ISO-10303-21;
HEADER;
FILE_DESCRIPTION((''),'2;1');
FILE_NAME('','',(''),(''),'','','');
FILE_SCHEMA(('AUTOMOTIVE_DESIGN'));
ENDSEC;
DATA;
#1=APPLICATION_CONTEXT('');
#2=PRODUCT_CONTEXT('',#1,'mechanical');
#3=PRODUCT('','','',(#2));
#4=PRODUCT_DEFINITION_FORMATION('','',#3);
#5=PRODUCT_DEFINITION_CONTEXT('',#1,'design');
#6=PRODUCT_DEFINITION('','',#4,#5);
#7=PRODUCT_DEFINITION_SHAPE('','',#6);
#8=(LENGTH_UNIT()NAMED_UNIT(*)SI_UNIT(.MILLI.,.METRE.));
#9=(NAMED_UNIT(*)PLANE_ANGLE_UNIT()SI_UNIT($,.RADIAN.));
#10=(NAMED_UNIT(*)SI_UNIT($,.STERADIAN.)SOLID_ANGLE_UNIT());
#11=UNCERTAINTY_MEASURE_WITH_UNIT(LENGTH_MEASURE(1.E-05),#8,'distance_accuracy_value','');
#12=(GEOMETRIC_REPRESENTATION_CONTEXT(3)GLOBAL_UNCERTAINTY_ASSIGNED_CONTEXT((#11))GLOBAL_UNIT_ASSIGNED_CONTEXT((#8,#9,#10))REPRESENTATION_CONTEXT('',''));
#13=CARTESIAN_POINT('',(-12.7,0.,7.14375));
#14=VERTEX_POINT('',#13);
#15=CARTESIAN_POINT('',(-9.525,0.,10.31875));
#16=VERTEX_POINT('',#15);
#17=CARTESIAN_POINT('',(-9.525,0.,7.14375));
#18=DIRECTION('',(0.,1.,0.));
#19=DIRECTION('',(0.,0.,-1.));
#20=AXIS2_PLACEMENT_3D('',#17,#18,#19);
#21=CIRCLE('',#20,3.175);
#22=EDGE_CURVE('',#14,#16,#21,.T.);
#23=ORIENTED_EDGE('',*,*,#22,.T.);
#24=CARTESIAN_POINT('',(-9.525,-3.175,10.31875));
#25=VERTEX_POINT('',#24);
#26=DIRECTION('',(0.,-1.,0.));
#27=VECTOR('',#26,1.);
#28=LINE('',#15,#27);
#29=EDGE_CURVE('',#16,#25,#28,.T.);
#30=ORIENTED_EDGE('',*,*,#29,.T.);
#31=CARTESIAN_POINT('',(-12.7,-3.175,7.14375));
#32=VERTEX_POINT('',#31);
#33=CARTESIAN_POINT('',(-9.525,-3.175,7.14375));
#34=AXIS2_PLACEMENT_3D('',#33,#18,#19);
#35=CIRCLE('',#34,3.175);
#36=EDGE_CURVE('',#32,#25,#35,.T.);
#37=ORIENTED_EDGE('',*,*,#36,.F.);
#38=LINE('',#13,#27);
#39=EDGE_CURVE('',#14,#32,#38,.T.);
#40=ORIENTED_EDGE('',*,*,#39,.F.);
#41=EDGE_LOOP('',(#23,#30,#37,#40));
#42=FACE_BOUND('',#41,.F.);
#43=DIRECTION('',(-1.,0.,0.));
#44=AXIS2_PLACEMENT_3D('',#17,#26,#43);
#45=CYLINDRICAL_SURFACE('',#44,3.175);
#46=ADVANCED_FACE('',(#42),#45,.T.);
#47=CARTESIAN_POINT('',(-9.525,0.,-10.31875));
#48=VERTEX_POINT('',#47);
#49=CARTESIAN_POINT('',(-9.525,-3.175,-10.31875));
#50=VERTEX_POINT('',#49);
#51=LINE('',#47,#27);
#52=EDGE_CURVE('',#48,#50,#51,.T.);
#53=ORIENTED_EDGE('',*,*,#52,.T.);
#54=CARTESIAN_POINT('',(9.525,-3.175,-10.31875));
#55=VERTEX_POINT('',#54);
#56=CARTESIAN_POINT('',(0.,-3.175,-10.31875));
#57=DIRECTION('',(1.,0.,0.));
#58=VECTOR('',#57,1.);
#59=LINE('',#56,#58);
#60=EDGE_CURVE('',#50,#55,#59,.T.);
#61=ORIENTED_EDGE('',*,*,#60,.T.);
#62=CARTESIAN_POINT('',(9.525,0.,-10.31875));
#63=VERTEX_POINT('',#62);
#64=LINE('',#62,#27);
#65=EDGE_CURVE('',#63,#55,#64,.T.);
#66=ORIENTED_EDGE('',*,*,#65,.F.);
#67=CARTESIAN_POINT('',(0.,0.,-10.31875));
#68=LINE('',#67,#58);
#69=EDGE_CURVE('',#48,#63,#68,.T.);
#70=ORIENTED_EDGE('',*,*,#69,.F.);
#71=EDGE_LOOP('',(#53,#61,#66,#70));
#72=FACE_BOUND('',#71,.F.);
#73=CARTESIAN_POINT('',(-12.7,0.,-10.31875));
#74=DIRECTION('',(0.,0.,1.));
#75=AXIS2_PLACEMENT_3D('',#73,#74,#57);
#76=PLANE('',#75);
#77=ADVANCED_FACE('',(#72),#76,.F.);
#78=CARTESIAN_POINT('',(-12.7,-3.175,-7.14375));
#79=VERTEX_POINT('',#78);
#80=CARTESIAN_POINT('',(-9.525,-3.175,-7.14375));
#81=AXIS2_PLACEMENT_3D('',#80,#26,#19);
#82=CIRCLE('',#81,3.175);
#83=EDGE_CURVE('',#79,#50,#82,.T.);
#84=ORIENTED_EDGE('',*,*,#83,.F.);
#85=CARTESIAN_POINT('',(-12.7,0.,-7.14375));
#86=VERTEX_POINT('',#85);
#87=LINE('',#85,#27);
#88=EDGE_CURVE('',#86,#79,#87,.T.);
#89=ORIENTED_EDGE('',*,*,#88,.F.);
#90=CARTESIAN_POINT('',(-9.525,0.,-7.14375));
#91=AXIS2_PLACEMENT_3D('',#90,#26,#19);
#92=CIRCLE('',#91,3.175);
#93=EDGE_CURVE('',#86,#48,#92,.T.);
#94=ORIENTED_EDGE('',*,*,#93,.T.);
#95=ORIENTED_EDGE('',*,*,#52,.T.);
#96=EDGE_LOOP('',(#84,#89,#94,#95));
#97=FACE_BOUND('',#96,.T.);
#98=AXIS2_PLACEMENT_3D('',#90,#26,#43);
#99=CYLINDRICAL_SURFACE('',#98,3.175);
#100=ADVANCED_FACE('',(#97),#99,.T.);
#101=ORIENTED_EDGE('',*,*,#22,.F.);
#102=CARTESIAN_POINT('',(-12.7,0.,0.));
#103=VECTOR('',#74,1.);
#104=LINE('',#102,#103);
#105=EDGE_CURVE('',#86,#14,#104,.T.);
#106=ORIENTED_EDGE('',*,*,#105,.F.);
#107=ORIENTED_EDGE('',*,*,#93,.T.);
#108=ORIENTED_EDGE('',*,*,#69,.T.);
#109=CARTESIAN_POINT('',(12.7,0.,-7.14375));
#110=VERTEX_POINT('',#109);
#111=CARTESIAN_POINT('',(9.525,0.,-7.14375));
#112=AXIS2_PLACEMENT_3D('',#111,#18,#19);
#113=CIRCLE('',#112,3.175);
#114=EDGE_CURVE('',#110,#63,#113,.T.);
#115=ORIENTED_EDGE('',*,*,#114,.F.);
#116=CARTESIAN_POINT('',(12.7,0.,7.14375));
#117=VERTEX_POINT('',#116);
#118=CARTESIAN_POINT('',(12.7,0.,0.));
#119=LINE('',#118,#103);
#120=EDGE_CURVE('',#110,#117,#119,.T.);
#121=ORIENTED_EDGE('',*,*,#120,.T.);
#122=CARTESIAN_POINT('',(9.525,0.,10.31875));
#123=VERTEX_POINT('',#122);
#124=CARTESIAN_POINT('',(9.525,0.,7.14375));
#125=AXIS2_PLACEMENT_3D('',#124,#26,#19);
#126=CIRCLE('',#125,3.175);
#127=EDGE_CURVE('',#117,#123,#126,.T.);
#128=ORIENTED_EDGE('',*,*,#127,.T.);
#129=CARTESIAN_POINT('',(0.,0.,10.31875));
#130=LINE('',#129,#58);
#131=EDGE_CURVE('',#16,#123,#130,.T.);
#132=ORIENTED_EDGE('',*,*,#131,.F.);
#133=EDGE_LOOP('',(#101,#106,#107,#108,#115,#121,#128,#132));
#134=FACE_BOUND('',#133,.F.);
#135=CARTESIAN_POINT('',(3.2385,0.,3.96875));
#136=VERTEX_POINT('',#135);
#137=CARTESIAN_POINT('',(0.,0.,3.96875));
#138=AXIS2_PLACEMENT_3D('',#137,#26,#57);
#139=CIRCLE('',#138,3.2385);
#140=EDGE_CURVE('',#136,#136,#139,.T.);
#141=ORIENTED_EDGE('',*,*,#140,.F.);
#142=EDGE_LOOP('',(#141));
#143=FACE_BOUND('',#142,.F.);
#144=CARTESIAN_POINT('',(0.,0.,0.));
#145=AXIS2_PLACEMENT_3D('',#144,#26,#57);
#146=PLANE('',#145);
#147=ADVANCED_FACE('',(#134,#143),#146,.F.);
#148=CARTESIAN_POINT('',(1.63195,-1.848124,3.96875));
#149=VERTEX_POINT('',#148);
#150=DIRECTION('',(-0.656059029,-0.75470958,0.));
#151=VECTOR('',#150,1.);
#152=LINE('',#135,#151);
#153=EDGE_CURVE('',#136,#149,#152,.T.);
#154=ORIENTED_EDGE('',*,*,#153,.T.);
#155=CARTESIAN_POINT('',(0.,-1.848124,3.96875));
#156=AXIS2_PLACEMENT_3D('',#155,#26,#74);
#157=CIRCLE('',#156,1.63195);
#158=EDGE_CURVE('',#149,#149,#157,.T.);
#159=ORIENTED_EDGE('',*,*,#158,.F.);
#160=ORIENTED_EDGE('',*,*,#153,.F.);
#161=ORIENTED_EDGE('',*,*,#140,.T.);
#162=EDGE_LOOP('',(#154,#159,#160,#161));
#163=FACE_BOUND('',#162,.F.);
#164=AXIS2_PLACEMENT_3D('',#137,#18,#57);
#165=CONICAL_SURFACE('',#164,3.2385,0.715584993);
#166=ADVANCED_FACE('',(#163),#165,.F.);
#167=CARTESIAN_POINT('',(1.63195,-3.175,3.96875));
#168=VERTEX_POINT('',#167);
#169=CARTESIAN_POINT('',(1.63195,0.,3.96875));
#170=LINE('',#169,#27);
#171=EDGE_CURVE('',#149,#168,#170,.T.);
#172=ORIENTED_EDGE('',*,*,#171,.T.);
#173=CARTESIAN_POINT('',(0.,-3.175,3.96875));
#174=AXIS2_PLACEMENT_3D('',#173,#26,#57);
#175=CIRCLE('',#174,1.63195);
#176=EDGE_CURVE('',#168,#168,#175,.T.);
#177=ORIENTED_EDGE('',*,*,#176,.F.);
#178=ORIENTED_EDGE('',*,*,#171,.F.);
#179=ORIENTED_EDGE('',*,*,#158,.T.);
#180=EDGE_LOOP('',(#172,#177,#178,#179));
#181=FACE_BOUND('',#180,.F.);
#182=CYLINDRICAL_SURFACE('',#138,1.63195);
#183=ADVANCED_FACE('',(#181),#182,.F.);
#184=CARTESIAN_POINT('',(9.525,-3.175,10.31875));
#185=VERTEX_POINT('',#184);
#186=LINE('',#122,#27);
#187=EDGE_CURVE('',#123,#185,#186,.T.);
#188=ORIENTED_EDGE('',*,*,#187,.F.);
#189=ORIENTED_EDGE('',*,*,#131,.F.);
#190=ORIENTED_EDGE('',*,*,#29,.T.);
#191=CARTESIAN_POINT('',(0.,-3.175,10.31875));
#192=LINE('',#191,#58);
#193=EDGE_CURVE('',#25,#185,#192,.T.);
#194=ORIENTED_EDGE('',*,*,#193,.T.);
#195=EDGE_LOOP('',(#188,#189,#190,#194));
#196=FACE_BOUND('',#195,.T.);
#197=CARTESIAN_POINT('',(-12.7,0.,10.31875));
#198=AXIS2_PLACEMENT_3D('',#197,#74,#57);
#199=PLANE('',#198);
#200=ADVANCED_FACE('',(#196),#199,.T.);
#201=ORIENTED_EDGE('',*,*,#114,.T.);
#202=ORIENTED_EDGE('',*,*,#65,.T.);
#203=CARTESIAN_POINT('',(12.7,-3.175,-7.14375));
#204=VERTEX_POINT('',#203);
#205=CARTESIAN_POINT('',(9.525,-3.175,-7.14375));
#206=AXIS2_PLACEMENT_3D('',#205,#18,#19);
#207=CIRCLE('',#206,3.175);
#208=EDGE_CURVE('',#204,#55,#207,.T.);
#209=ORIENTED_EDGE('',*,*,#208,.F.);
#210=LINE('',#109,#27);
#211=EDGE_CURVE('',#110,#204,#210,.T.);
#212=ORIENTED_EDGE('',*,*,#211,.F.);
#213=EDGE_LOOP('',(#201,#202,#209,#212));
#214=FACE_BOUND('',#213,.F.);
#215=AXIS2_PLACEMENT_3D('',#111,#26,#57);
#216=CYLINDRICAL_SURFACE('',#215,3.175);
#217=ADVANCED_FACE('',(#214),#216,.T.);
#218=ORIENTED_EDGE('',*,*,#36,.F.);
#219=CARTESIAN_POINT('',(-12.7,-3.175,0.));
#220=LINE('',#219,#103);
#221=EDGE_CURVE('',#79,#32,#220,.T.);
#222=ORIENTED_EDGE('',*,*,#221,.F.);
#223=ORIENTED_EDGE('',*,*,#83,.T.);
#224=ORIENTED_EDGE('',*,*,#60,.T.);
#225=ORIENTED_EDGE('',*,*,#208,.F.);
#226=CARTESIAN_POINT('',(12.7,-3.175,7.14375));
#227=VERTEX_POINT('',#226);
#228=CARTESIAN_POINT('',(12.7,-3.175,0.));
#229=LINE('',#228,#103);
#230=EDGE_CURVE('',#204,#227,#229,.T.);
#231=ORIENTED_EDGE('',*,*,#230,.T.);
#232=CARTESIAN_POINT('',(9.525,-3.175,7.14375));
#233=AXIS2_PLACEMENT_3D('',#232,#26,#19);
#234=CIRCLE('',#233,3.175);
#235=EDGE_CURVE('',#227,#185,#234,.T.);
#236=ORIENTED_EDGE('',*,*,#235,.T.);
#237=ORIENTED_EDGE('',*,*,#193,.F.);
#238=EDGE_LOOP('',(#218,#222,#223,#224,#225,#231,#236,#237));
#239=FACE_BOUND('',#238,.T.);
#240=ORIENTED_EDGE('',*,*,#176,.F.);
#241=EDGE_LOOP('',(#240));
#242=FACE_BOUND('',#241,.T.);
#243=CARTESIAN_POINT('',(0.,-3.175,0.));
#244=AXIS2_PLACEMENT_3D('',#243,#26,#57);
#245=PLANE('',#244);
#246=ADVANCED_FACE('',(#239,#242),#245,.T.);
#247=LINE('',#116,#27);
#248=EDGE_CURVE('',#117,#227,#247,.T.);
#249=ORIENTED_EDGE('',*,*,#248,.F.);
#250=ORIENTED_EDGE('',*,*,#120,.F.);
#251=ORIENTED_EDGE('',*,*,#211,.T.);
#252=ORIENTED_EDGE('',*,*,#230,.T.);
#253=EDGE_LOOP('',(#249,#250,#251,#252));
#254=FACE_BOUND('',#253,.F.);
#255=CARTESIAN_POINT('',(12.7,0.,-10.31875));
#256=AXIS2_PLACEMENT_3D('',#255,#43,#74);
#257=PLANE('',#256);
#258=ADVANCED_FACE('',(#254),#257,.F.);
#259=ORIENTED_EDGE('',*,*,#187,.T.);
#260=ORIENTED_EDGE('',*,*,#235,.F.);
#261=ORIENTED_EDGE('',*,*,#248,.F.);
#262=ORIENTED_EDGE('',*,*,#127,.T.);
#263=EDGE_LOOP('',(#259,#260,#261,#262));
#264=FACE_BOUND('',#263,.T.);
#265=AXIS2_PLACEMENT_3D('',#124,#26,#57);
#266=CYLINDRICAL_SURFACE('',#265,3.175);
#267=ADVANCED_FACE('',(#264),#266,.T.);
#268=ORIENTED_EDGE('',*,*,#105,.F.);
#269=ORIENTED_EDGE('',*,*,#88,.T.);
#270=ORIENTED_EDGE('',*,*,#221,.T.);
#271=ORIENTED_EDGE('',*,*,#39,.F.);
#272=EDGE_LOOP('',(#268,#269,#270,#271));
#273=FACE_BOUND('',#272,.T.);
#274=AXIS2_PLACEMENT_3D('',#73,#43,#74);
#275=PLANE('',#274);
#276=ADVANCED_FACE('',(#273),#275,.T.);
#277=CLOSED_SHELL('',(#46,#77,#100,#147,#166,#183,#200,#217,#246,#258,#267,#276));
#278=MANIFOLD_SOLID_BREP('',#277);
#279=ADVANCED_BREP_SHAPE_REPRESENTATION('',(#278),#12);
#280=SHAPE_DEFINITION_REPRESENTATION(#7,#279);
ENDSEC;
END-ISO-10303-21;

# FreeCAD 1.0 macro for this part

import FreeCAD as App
import Part
import Sketcher

V = App.Vector
Q = App.Units.Quantity


def edges_at(feature, points):
    """Names of the edges that pass closest to the given points."""
    edges = feature.Shape.Edges
    near = lambda p: min(range(len(edges)), key=lambda i: edges[i].distToShape(Part.Vertex(*p))[0])
    return sorted({f"Edge{near(p) + 1}" for p in points})


def add_polygon(sketch, points):
    """Adds a closed chain of lines whose ends are joined by coincident constraints."""
    first, n = sketch.GeometryCount, len(points)
    for a, b in zip(points, points[1:] + points[:1]):
        sketch.addGeometry(Part.LineSegment(App.Vector(*a, 0), App.Vector(*b, 0)), False)
    for i in range(n):
        sketch.addConstraint(Sketcher.Constraint("Coincident", first + i, 2, first + (i + 1) % n, 1))

doc = App.newDocument("Part")
params = doc.addObject("Spreadsheet::Sheet", "Params")
for row, (alias, value) in enumerate([
    ("sketch1_width", "1 in"),
    ("sketch1_height", "0.8125 in"),
    ("pad1_length", "0.125 in"),
    ("hole_diameter", "0.1285 in"),
    ("hole_csink_diameter", "0.255 in"),
    ("fillet_radius", "0.125 in"),
], start=1):
    params.set(f"A{row}", alias)
    params.set(f"B{row}", "=" + value)
    params.setAlias(f"B{row}", alias)

body = doc.addObject("PartDesign::Body", "Body")

sketch1 = doc.addObject("Sketcher::SketchObject", "Sketch")
body.addObject(sketch1)
sketch1.AttachmentSupport = (doc.XZ_Plane, [""])
sketch1.MapMode = "FlatFace"
add_polygon(sketch1, [(-13, 10), (-13, -10), (13, -10), (13, 10)])
sketch1.addConstraint([
    Sketcher.Constraint("Vertical", 0),
    Sketcher.Constraint("Horizontal", 1),
    Sketcher.Constraint("Vertical", 2),
    Sketcher.Constraint("Horizontal", 3),
    Sketcher.Constraint("Symmetric", 0, 2, 2, 2, -1, 1),
    Sketcher.Constraint("DistanceX", 1, 1, 1, 2, Q("1 in")),
    Sketcher.Constraint("DistanceY", 0, 2, 0, 1, Q("0.8125 in")),
])
sketch1.setExpression("Constraints[9]", "Params.sketch1_width")
sketch1.setExpression("Constraints[10]", "Params.sketch1_height")
pad1 = doc.addObject("PartDesign::Pad", "Pad")
body.addObject(pad1)
pad1.Profile = sketch1
pad1.setExpression("Length", "Params.pad1_length")

sketch2 = doc.addObject("Sketcher::SketchObject", "Sketch001")
body.addObject(sketch2)
sketch2.AttachmentSupport = (doc.XZ_Plane, [""])
sketch2.MapMode = "FlatFace"
sketch2.addGeometry(Part.Circle(V(0, 4, 0), V(0, 0, 1), 1.6), False)
sketch2.addConstraint([
    Sketcher.Constraint("PointOnObject", 0, 3, -2),
    Sketcher.Constraint("Diameter", 0, Q("0.1285 in")),
    Sketcher.Constraint("DistanceY", -1, 1, 0, 3, Q("0.15625 in")),
])
doc.recompute()
hole = doc.addObject("PartDesign::Hole", "Hole")
body.addObject(hole)
hole.Profile = sketch2
hole.ThreadType = "None"
hole.setExpression("Diameter", "Params.hole_diameter")
hole.DepthType = "ThroughAll"
hole.HoleCutType = "Countersink"
hole.setExpression("HoleCutDiameter", "Params.hole_csink_diameter")
hole.HoleCutCountersinkAngle = 82
hole.Reversed = True
doc.recompute()

fillet = doc.addObject("PartDesign::Fillet", "Fillet")
body.addObject(fillet)
fillet.Base = (hole, edges_at(hole, [
    (12.7, -1.587, 10.319),
    (-12.7, -1.587, 10.319),
    (-12.7, -1.587, -10.319),
    (12.7, -1.587, -10.319),
]))
fillet.setExpression("Radius", "Params.fillet_radius")

doc.recompute()
